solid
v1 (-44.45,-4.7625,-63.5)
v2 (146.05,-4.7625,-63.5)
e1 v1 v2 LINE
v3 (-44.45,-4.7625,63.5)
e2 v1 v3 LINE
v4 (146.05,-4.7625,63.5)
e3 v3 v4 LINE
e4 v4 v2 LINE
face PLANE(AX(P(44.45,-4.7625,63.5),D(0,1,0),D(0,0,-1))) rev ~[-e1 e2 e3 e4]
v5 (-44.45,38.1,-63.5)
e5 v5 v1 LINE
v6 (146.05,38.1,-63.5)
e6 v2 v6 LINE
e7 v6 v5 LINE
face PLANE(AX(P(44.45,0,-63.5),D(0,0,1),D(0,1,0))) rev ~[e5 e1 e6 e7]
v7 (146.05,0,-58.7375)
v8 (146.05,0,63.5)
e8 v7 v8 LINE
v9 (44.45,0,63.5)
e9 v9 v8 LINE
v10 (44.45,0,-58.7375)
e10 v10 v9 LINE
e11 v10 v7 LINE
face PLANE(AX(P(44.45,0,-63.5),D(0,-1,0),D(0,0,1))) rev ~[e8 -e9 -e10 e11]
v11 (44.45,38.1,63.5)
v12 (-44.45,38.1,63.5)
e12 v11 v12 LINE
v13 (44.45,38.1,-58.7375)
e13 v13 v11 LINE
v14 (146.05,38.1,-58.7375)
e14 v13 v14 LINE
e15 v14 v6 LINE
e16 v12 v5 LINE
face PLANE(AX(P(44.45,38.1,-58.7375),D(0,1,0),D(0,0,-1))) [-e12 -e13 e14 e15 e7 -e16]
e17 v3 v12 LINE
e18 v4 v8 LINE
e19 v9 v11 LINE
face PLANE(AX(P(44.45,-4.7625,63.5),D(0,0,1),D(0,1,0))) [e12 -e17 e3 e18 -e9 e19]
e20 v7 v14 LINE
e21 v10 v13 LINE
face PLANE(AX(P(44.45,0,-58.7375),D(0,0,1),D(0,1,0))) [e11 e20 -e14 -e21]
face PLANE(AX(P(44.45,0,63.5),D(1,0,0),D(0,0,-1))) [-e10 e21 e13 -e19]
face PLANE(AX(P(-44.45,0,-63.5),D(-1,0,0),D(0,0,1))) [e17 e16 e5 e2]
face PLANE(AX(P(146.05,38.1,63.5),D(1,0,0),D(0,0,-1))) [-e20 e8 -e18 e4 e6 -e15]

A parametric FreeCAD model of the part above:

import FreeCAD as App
import Part
import Sketcher
from FreeCAD import Vector
Q = App.Units.Quantity

doc = App.newDocument("Part")
body = doc.addObject("PartDesign::Body", "Body")

# Sketch on XZ plane
sketch1 = body.newObject("Sketcher::SketchObject", "Sketch")
sketch1.AttachmentSupport = (doc.getObject("XZ_Plane"), [""])
sketch1.MapMode = "FlatFace"
sketch1.addGeometry([
    Part.LineSegment(Vector(-44, -64, 0), Vector(-44, 64, 0)),
    Part.LineSegment(Vector(-44, 64, 0), Vector(44, 64, 0)),
    Part.LineSegment(Vector(44, 64, 0), Vector(44, -64, 0)),
    Part.LineSegment(Vector(44, -64, 0), Vector(-44, -64, 0)),
], False)
sketch1.addConstraint([
    Sketcher.Constraint("Coincident", 0, 2, 1, 1),
    Sketcher.Constraint("Coincident", 1, 2, 2, 1),
    Sketcher.Constraint("Coincident", 2, 2, 3, 1),
    Sketcher.Constraint("Coincident", 3, 2, 0, 1),
    Sketcher.Constraint("Vertical", 0),
    Sketcher.Constraint("Horizontal", 1),
    Sketcher.Constraint("Vertical", 2),
    Sketcher.Constraint("Horizontal", 3),
    Sketcher.Constraint("Symmetric", 0, 2, 2, 2, -1, 1),
    Sketcher.Constraint("DistanceY", 0, 1, 0, 2, Q("5 in")),
    Sketcher.Constraint("DistanceX", 1, 1, 1, 2, Q("3.5 in")),
])
pad1 = body.newObject("PartDesign::Pad", "Pad")
pad1.Profile = sketch1
pad1.Length = Q("0.1875 in")

# Sketch on XZ plane
sketch2 = body.newObject("Sketcher::SketchObject", "Sketch001")
sketch2.AttachmentSupport = (doc.getObject("XZ_Plane"), [""])
sketch2.MapMode = "FlatFace"
sketch2.addGeometry([
    Part.LineSegment(Vector(-44.5, -63.5, 0), Vector(-44.5, -58.7, 0)),
    Part.LineSegment(Vector(-44.5, -58.7, 0), Vector(44.5, -58.7, 0)),
    Part.LineSegment(Vector(44.5, -58.7, 0), Vector(44.5, -63.5, 0)),
    Part.LineSegment(Vector(44.5, -63.5, 0), Vector(-44.5, -63.5, 0)),
], False)
sketch2.addConstraint([
    Sketcher.Constraint("Coincident", 0, 2, 1, 1),
    Sketcher.Constraint("Coincident", 1, 2, 2, 1),
    Sketcher.Constraint("Coincident", 2, 2, 3, 1),
    Sketcher.Constraint("Coincident", 3, 2, 0, 1),
    Sketcher.Constraint("Vertical", 0),
    Sketcher.Constraint("Horizontal", 1),
    Sketcher.Constraint("Vertical", 2),
    Sketcher.Constraint("Horizontal", 3),
    Sketcher.Constraint("DistanceY", 0, 1, 0, 2, Q("0.1875 in")),
    Sketcher.Constraint("DistanceX", 1, 1, 1, 2, Q("3.5 in")),
    Sketcher.Constraint("DistanceY", 2, 2, -1, 1, Q("2.5 in")),
    Sketcher.Constraint("DistanceX", 0, 2, -1, 1, Q("1.75 in")),
])
pad2 = body.newObject("PartDesign::Pad", "Pad001")
pad2.Profile = sketch2
pad2.Length = Q("1.5 in")
pad2.Reversed = True

# Sketch on XZ plane
sketch3 = body.newObject("Sketcher::SketchObject", "Sketch002")
sketch3.AttachmentSupport = (doc.getObject("XZ_Plane"), [""])
sketch3.MapMode = "FlatFace"
sketch3.addGeometry([
    Part.LineSegment(Vector(44, 64, 0), Vector(44, -64, 0)),
    Part.LineSegment(Vector(44, -64, 0), Vector(-44, -64, 0)),
    Part.LineSegment(Vector(-44, -64, 0), Vector(-44, 64, 0)),
    Part.LineSegment(Vector(-44, 64, 0), Vector(44, 64, 0)),
], False)
sketch3.addConstraint([
    Sketcher.Constraint("Coincident", 0, 2, 1, 1),
    Sketcher.Constraint("Coincident", 1, 2, 2, 1),
    Sketcher.Constraint("Coincident", 2, 2, 3, 1),
    Sketcher.Constraint("Coincident", 3, 2, 0, 1),
    Sketcher.Constraint("Vertical", 0),
    Sketcher.Constraint("Horizontal", 1),
    Sketcher.Constraint("Vertical", 2),
    Sketcher.Constraint("Horizontal", 3),
    Sketcher.Constraint("Symmetric", 0, 2, 2, 2, -1, 1),
    Sketcher.Constraint("DistanceY", 0, 2, 0, 1, Q("5 in")),
    Sketcher.Constraint("DistanceX", 1, 2, 1, 1, Q("3.5 in")),
])
pad3 = body.newObject("PartDesign::Pad", "Pad002")
pad3.Profile = sketch3
pad3.Length = Q("1.5 in")
pad3.Reversed = True

# Sketch on XZ plane
sketch4 = body.newObject("Sketcher::SketchObject", "Sketch003")
sketch4.AttachmentSupport = (doc.getObject("XZ_Plane"), [""])
sketch4.MapMode = "FlatFace"
sketch4.addGeometry([
    Part.LineSegment(Vector(-22.2, -58.7, 0), Vector(-22.2, 63.5, 0)),  # 0
    Part.LineSegment(Vector(-22.2, 63.5, 0), Vector(-19.1, 63.5, 0)),  # 1
    Part.LineSegment(Vector(-19.1, 63.5, 0), Vector(-19.1, -58.7, 0)),  # 2
    Part.LineSegment(Vector(-19.1, -58.7, 0), Vector(-22.2, -58.7, 0)),  # 3
    Part.LineSegment(Vector(0, -58.7, 0), Vector(0, 63.5, 0)),  # 4
    Part.LineSegment(Vector(0, 63.5, 0), Vector(3.2, 63.5, 0)),  # 5
    Part.LineSegment(Vector(3.2, 63.5, 0), Vector(3.2, -58.7, 0)),  # 6
    Part.LineSegment(Vector(3.2, -58.7, 0), Vector(0, -58.7, 0)),  # 7
    Part.LineSegment(Vector(15.9, -58.7, 0), Vector(15.9, 63.5, 0)),  # 8
    Part.LineSegment(Vector(15.9, 63.5, 0), Vector(19.1, 63.5, 0)),  # 9
    Part.LineSegment(Vector(19.1, 63.5, 0), Vector(19.1, -58.7, 0)),  # 10
    Part.LineSegment(Vector(19.1, -58.7, 0), Vector(15.9, -58.7, 0)),  # 11
], False)
sketch4.addConstraint([
    Sketcher.Constraint("Coincident", 0, 2, 1, 1),
    Sketcher.Constraint("Coincident", 1, 2, 2, 1),
    Sketcher.Constraint("Coincident", 2, 2, 3, 1),
    Sketcher.Constraint("Coincident", 3, 2, 0, 1),
    Sketcher.Constraint("Coincident", 4, 2, 5, 1),
    Sketcher.Constraint("Coincident", 5, 2, 6, 1),
    Sketcher.Constraint("Coincident", 6, 2, 7, 1),
    Sketcher.Constraint("Coincident", 7, 2, 4, 1),
    Sketcher.Constraint("Coincident", 8, 2, 9, 1),
    Sketcher.Constraint("Coincident", 9, 2, 10, 1),
    Sketcher.Constraint("Coincident", 10, 2, 11, 1),
    Sketcher.Constraint("Coincident", 11, 2, 8, 1),
    Sketcher.Constraint("Vertical", 0),
    Sketcher.Constraint("Horizontal", 1),
    Sketcher.Constraint("Vertical", 2),
    Sketcher.Constraint("Horizontal", 3),
    Sketcher.Constraint("Vertical", 4),
    Sketcher.Constraint("Horizontal", 5),
    Sketcher.Constraint("Vertical", 6),
    Sketcher.Constraint("Horizontal", 7),
    Sketcher.Constraint("Vertical", 8),
    Sketcher.Constraint("Horizontal", 9),
    Sketcher.Constraint("Vertical", 10),
    Sketcher.Constraint("Horizontal", 11),
    Sketcher.Constraint("Symmetric", 1, 2, 9, 2, -2),
    Sketcher.Constraint("PointOnObject", 4, 2, -2),
    Sketcher.Constraint("Horizontal", 1, 2, 4, 2),
    Sketcher.Constraint("Horizontal", 3, 2, 6, 2),
    Sketcher.Constraint("Horizontal", 7, 2, 10, 2),
    Sketcher.Constraint("Equal", 3, 5),
    Sketcher.Constraint("Equal", 7, 9),
    Sketcher.Constraint("DistanceX", 5, 2, 8, 2, Q("0.5 in")),
    Sketcher.Constraint("DistanceX", 1, 1, 1, 2, Q("0.125 in")),
    Sketcher.Constraint("DistanceY", -1, 1, 0, 2, Q("2.5 in")),
    Sketcher.Constraint("DistanceY", 0, 1, 0, 2, Q("4.8125 in")),
])
pad4 = body.newObject("PartDesign::Pad", "Pad003")
pad4.Profile = sketch4
pad4.Length = Q("1.5 in")
pad4.Reversed = True

# Sketch on YZ plane
sketch5 = body.newObject("Sketcher::SketchObject", "Sketch004")
sketch5.AttachmentSupport = (doc.getObject("YZ_Plane"), [""])
sketch5.MapMode = "FlatFace"
sketch5.AttachmentOffset = App.Placement(Vector(0, 0, 1.75 * 25.4), App.Rotation())
sketch5.addGeometry([
    Part.LineSegment(Vector(0, 63.5, 0), Vector(-4.8, 63.5, 0)),
    Part.LineSegment(Vector(-4.8, 63.5, 0), Vector(-4.8, -63.5, 0)),
    Part.LineSegment(Vector(-4.8, -63.5, 0), Vector(0, -63.5, 0)),
    Part.LineSegment(Vector(0, -63.5, 0), Vector(0, 63.5, 0)),
], False)
sketch5.addConstraint([
    Sketcher.Constraint("Coincident", 0, 2, 1, 1),
    Sketcher.Constraint("Coincident", 1, 2, 2, 1),
    Sketcher.Constraint("Coincident", 2, 2, 3, 1),
    Sketcher.Constraint("Coincident", 3, 2, 0, 1),
    Sketcher.Constraint("Horizontal", 0),
    Sketcher.Constraint("Vertical", 1),
    Sketcher.Constraint("Horizontal", 2),
    Sketcher.Constraint("Vertical", 3),
    Sketcher.Constraint("Symmetric", 2, 2, 3, 2, -1, 1),
    Sketcher.Constraint("DistanceX", 0, 2, 0, 1, Q("0.1875 in")),
    Sketcher.Constraint("DistanceY", 1, 2, 1, 1, Q("5 in")),
])
pad5 = body.newObject("PartDesign::Pad", "Pad004")
pad5.Profile = sketch5
pad5.Length = Q("4 in")

# Sketch on YZ plane
sketch6 = body.newObject("Sketcher::SketchObject", "Sketch005")
sketch6.AttachmentSupport = (doc.getObject("YZ_Plane"), [""])
sketch6.MapMode = "FlatFace"
sketch6.AttachmentOffset = App.Placement(Vector(0, 0, 1.75 * 25.4), App.Rotation())
sketch6.addGeometry([
    Part.LineSegment(Vector(0, -58.7, 0), Vector(0, -63.5, 0)),
    Part.LineSegment(Vector(0, -63.5, 0), Vector(38.1, -63.5, 0)),
    Part.LineSegment(Vector(38.1, -63.5, 0), Vector(38.1, -58.7, 0)),
    Part.LineSegment(Vector(38.1, -58.7, 0), Vector(0, -58.7, 0)),
], False)
sketch6.addConstraint([
    Sketcher.Constraint("Coincident", 0, 2, 1, 1),
    Sketcher.Constraint("Coincident", 1, 2, 2, 1),
    Sketcher.Constraint("Coincident", 2, 2, 3, 1),
    Sketcher.Constraint("Coincident", 3, 2, 0, 1),
    Sketcher.Constraint("Vertical", 0),
    Sketcher.Constraint("Horizontal", 1),
    Sketcher.Constraint("Vertical", 2),
    Sketcher.Constraint("Horizontal", 3),
    Sketcher.Constraint("PointOnObject", 0, 2, -2),
    Sketcher.Constraint("DistanceX", 1, 1, 1, 2, Q("1.5 in")),
    Sketcher.Constraint("DistanceY", 0, 2, -1, 1, Q("2.5 in")),
    Sketcher.Constraint("DistanceY", 0, 2, 0, 1, Q("0.1875 in")),
])
pad6 = body.newObject("PartDesign::Pad", "Pad005")
pad6.Profile = sketch6
pad6.Length = Q("4 in")

doc.recompute()
